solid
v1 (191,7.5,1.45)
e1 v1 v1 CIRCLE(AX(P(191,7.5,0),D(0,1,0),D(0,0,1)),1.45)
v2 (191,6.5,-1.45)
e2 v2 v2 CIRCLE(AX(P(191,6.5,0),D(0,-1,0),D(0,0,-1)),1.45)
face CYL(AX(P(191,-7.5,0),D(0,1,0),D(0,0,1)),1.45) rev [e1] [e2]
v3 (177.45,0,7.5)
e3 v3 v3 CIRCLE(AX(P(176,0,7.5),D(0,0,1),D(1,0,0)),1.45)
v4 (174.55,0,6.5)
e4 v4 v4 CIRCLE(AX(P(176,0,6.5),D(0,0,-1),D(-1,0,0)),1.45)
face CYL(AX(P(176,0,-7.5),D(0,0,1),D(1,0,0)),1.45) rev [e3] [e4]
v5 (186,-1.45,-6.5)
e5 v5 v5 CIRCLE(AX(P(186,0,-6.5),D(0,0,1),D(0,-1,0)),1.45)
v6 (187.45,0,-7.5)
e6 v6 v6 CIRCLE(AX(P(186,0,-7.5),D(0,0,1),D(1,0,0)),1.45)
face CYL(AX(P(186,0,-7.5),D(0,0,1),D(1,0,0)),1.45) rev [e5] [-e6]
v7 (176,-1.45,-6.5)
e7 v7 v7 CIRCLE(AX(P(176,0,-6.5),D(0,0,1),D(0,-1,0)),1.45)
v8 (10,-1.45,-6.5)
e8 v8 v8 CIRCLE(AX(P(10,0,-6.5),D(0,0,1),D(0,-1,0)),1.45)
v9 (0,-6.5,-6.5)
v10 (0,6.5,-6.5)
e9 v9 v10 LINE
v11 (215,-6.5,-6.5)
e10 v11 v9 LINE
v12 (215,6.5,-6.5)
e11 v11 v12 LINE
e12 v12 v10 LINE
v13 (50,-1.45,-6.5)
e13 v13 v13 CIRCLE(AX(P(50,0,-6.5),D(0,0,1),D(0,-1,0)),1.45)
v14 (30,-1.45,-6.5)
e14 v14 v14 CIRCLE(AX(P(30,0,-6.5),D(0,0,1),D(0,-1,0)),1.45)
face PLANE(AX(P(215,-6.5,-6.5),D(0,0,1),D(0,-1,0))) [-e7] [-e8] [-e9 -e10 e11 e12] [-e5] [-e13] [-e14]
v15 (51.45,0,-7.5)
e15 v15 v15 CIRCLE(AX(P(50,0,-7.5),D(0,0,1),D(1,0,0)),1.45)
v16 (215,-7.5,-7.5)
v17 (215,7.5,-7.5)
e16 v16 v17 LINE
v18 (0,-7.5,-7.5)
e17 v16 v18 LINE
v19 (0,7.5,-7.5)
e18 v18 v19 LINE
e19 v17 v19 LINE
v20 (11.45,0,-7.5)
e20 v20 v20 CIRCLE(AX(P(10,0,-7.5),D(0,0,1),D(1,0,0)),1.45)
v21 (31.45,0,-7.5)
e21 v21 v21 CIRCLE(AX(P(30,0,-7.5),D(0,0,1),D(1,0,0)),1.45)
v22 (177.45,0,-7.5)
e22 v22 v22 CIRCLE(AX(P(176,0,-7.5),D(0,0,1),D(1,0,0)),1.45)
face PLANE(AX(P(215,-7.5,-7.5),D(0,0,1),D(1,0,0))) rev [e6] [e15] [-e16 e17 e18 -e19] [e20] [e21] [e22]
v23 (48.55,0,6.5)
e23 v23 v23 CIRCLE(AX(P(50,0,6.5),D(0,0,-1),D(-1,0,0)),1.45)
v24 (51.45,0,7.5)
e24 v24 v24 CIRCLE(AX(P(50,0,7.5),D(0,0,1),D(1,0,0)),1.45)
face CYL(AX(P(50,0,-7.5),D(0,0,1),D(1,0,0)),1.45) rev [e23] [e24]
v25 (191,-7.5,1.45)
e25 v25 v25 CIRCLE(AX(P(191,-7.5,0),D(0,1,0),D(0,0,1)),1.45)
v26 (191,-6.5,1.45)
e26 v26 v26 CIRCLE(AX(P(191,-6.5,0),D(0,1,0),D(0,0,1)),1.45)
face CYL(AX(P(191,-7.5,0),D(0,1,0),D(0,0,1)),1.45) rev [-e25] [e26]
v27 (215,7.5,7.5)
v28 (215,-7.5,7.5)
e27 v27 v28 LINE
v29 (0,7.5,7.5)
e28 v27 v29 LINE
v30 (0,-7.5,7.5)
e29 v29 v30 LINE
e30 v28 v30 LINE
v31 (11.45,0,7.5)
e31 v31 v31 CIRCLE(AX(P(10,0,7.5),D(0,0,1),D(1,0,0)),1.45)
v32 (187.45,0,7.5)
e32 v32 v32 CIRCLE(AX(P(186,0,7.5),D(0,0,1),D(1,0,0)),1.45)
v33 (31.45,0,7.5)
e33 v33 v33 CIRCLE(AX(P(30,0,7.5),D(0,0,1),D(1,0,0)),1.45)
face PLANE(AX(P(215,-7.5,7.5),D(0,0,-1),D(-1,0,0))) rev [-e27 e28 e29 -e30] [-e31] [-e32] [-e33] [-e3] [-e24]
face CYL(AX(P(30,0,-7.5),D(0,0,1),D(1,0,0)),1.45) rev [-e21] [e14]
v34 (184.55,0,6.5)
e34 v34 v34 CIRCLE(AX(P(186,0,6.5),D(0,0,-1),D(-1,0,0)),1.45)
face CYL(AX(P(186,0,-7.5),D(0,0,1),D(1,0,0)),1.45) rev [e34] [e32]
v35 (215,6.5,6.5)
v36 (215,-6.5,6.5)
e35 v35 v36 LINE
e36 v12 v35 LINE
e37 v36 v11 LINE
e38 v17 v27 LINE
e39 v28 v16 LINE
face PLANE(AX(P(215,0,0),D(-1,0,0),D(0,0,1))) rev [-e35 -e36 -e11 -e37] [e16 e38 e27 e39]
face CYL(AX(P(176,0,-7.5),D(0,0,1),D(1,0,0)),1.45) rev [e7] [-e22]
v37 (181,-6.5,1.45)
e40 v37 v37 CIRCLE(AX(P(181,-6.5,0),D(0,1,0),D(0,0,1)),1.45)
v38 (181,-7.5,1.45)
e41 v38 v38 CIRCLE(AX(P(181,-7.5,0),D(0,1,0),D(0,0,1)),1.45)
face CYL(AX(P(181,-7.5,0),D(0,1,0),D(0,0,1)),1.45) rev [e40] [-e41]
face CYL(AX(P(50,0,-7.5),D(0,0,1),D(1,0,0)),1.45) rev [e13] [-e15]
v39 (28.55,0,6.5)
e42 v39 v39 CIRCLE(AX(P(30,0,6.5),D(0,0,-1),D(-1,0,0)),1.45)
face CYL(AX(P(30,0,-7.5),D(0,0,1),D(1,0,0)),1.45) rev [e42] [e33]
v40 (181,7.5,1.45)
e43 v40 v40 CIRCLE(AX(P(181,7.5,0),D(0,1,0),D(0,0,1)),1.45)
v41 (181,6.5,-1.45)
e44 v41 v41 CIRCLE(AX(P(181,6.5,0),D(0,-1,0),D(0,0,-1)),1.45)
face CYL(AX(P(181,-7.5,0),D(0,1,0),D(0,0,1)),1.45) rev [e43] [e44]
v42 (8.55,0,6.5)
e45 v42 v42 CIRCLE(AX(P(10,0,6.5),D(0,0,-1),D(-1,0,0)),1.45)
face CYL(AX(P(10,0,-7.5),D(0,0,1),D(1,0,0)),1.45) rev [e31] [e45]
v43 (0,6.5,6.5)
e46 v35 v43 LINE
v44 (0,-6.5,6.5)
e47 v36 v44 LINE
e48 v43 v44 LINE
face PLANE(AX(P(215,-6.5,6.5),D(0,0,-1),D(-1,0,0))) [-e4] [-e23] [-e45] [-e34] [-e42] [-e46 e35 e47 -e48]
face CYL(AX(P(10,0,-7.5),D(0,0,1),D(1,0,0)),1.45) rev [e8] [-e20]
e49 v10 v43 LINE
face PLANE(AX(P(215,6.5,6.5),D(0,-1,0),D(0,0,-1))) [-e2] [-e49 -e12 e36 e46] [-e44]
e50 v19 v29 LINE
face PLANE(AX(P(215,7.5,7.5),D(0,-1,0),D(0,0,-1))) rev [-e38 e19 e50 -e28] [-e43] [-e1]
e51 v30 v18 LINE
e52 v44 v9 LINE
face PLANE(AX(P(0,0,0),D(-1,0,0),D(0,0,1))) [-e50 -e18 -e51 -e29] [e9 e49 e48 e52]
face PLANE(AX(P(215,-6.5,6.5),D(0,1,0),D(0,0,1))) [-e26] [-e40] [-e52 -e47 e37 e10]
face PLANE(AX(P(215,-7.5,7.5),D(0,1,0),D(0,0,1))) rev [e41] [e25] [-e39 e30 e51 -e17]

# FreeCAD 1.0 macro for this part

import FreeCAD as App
import Part
import Sketcher

V = App.Vector


def add_polygon(sketch, points):
    """Adds a closed chain of lines whose ends are joined by coincident constraints."""
    first, n = sketch.GeometryCount, len(points)
    for a, b in zip(points, points[1:] + points[:1]):
        sketch.addGeometry(Part.LineSegment(App.Vector(*a, 0), App.Vector(*b, 0)), False)
    for i in range(n):
        sketch.addConstraint(Sketcher.Constraint("Coincident", first + i, 2, first + (i + 1) % n, 1))

doc = App.newDocument("Part")
params = doc.addObject("Spreadsheet::Sheet", "Params")
for row, (alias, value) in enumerate([
    ("sketch1_width", "15 mm"),
    ("sketch1_width2", "13 mm"),
    ("pad1_length", "215 mm"),
    ("sketch2_diameter", "2.9 mm"),
    ("sketch3_diameter", "2.9 mm"),
], start=1):
    params.set(f"A{row}", alias)
    params.set(f"B{row}", "=" + value)
    params.setAlias(f"B{row}", alias)

body = doc.addObject("PartDesign::Body", "Body")

sketch1 = body.newObject("Sketcher::SketchObject", "Sketch")
sketch1.AttachmentSupport = (doc.getObject("YZ_Plane"), [""])
sketch1.MapMode = "FlatFace"
add_polygon(sketch1, [(8, 8), (-8, 8), (-8, -8), (8, -8)])
add_polygon(sketch1, [(-6, -6), (-6, 6), (6, 6), (6, -6)])
sketch1.addConstraint([
    Sketcher.Constraint("Horizontal", 0),
    Sketcher.Constraint("Vertical", 1),
    Sketcher.Constraint("Horizontal", 2),
    Sketcher.Constraint("Vertical", 3),
    Sketcher.Constraint("Vertical", 4),
    Sketcher.Constraint("Horizontal", 5),
    Sketcher.Constraint("Vertical", 6),
    Sketcher.Constraint("Horizontal", 7),
    Sketcher.Constraint("Symmetric", 0, 2, 2, 2, -1, 1),
    Sketcher.Constraint("Symmetric", 4, 2, 6, 2, -1, 1),
    Sketcher.Constraint("Equal", 2, 1),
    Sketcher.Constraint("Equal", 7, 4),
    Sketcher.Constraint("DistanceX", 0, 2, 0, 1, 15.0),
    Sketcher.Constraint("DistanceX", 5, 1, 5, 2, 13.0),
])
sketch1.setExpression("Constraints[20]", "Params.sketch1_width")
sketch1.setExpression("Constraints[21]", "Params.sketch1_width2")
pad1 = body.newObject("PartDesign::Pad", "Pad")
pad1.Profile = sketch1
pad1.setExpression("Length", "Params.pad1_length")

sketch2 = body.newObject("Sketcher::SketchObject", "Sketch001")
sketch2.AttachmentSupport = (doc.getObject("XY_Plane"), [""])
sketch2.MapMode = "FlatFace"
sketch2.AttachmentOffset = App.Placement(V(0, 0, 7.5), App.Rotation())
sketch2.addGeometry([
    Part.Circle(V(50, 0, 0), V(0, 0, 1), 1.4),
    Part.Circle(V(30, 0, 0), V(0, 0, 1), 1.4),
    Part.Circle(V(10, 0, 0), V(0, 0, 1), 1.4),
    Part.Circle(V(186, 0, 0), V(0, 0, 1), 1.4),
    Part.Circle(V(176, 0, 0), V(0, 0, 1), 1.4),
], False)
sketch2.addConstraint([
    Sketcher.Constraint("Equal", 0, 1),
    Sketcher.Constraint("Equal", 1, 2),
    Sketcher.Constraint("Equal", 2, 3),
    Sketcher.Constraint("Equal", 3, 4),
    Sketcher.Constraint("PointOnObject", 0, 3, -1),
    Sketcher.Constraint("PointOnObject", 1, 3, -1),
    Sketcher.Constraint("PointOnObject", 2, 3, -1),
    Sketcher.Constraint("PointOnObject", 3, 3, -1),
    Sketcher.Constraint("PointOnObject", 4, 3, -1),
    Sketcher.Constraint("Diameter", 0, 2.9),
    Sketcher.Constraint("DistanceX", -1, 1, 0, 3, 50.0),
    Sketcher.Constraint("DistanceX", -1, 1, 1, 3, 30.0),
    Sketcher.Constraint("DistanceX", -1, 1, 2, 3, 10.0),
    Sketcher.Constraint("DistanceX", -1, 1, 3, 3, 186.0),
    Sketcher.Constraint("DistanceX", -1, 1, 4, 3, 176.0),
])
sketch2.setExpression("Constraints[9]", "Params.sketch2_diameter")
pocket1 = body.newObject("PartDesign::Pocket", "Pocket")
pocket1.Profile = sketch2
pocket1.Type = "ThroughAll"

sketch3 = body.newObject("Sketcher::SketchObject", "Sketch002")
sketch3.AttachmentSupport = (doc.getObject("XZ_Plane"), [""])
sketch3.MapMode = "FlatFace"
sketch3.AttachmentOffset = App.Placement(V(0, 0, -7.5), App.Rotation())
sketch3.addGeometry([
    Part.Circle(V(191, 0, 0), V(0, 0, 1), 1.4),
    Part.Circle(V(181, 0, 0), V(0, 0, 1), 1.4),
], False)
sketch3.addConstraint([
    Sketcher.Constraint("Equal", 0, 1),
    Sketcher.Constraint("PointOnObject", 0, 3, -1),
    Sketcher.Constraint("PointOnObject", 1, 3, -1),
    Sketcher.Constraint("Diameter", 0, 2.9),
    Sketcher.Constraint("DistanceX", -1, 1, 0, 3, 191.0),
    Sketcher.Constraint("DistanceX", -1, 1, 1, 3, 181.0),
])
sketch3.setExpression("Constraints[3]", "Params.sketch3_diameter")
pocket2 = body.newObject("PartDesign::Pocket", "Pocket001")
pocket2.Profile = sketch3
pocket2.Type = "ThroughAll"
pocket2.Reversed = True

doc.recompute()
